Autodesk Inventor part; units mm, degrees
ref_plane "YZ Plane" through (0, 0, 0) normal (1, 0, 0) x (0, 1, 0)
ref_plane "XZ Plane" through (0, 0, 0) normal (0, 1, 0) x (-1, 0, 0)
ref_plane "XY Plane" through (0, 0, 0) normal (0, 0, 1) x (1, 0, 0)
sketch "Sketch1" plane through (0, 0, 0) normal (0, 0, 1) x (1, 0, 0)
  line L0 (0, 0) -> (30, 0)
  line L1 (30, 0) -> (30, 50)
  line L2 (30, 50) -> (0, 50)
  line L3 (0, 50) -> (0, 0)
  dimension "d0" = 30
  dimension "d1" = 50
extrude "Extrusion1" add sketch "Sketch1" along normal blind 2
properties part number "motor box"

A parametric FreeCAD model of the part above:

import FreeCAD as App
import Part
import Sketcher
from FreeCAD import Vector

doc = App.newDocument("Part")
body = doc.addObject("PartDesign::Body", "Body")

# Sketch on XY plane
sketch1 = doc.addObject("Sketcher::SketchObject", "Sketch")
body.addObject(sketch1)
sketch1.AttachmentSupport = (doc.XY_Plane, [""])
sketch1.MapMode = "FlatFace"
sketch1.addGeometry(Part.LineSegment(Vector(0, 50, 0), Vector(0, 0, 0)), False)
sketch1.addGeometry(Part.LineSegment(Vector(0, 0, 0), Vector(30, 0, 0)), False)
sketch1.addGeometry(Part.LineSegment(Vector(30, 0, 0), Vector(30, 50, 0)), False)
sketch1.addGeometry(Part.LineSegment(Vector(30, 50, 0), Vector(0, 50, 0)), False)
sketch1.addConstraint(Sketcher.Constraint("Coincident", 0, 2, 1, 1))
sketch1.addConstraint(Sketcher.Constraint("Coincident", 1, 2, 2, 1))
sketch1.addConstraint(Sketcher.Constraint("Coincident", 2, 2, 3, 1))
sketch1.addConstraint(Sketcher.Constraint("Coincident", 3, 2, 0, 1))
sketch1.addConstraint(Sketcher.Constraint("Vertical", 0))
sketch1.addConstraint(Sketcher.Constraint("Horizontal", 1))
sketch1.addConstraint(Sketcher.Constraint("Vertical", 2))
sketch1.addConstraint(Sketcher.Constraint("Horizontal", 3))
sketch1.addConstraint(Sketcher.Constraint("Coincident", 0, 2, -1, 1))
sketch1.addConstraint(Sketcher.Constraint("DistanceX", 1, 1, 1, 2, 30.0))
sketch1.addConstraint(Sketcher.Constraint("DistanceY", 0, 2, 0, 1, 50.0))
pad1 = doc.addObject("PartDesign::Pad", "Pad")
body.addObject(pad1)
pad1.Profile = sketch1
pad1.Length = 2

doc.recompute()
